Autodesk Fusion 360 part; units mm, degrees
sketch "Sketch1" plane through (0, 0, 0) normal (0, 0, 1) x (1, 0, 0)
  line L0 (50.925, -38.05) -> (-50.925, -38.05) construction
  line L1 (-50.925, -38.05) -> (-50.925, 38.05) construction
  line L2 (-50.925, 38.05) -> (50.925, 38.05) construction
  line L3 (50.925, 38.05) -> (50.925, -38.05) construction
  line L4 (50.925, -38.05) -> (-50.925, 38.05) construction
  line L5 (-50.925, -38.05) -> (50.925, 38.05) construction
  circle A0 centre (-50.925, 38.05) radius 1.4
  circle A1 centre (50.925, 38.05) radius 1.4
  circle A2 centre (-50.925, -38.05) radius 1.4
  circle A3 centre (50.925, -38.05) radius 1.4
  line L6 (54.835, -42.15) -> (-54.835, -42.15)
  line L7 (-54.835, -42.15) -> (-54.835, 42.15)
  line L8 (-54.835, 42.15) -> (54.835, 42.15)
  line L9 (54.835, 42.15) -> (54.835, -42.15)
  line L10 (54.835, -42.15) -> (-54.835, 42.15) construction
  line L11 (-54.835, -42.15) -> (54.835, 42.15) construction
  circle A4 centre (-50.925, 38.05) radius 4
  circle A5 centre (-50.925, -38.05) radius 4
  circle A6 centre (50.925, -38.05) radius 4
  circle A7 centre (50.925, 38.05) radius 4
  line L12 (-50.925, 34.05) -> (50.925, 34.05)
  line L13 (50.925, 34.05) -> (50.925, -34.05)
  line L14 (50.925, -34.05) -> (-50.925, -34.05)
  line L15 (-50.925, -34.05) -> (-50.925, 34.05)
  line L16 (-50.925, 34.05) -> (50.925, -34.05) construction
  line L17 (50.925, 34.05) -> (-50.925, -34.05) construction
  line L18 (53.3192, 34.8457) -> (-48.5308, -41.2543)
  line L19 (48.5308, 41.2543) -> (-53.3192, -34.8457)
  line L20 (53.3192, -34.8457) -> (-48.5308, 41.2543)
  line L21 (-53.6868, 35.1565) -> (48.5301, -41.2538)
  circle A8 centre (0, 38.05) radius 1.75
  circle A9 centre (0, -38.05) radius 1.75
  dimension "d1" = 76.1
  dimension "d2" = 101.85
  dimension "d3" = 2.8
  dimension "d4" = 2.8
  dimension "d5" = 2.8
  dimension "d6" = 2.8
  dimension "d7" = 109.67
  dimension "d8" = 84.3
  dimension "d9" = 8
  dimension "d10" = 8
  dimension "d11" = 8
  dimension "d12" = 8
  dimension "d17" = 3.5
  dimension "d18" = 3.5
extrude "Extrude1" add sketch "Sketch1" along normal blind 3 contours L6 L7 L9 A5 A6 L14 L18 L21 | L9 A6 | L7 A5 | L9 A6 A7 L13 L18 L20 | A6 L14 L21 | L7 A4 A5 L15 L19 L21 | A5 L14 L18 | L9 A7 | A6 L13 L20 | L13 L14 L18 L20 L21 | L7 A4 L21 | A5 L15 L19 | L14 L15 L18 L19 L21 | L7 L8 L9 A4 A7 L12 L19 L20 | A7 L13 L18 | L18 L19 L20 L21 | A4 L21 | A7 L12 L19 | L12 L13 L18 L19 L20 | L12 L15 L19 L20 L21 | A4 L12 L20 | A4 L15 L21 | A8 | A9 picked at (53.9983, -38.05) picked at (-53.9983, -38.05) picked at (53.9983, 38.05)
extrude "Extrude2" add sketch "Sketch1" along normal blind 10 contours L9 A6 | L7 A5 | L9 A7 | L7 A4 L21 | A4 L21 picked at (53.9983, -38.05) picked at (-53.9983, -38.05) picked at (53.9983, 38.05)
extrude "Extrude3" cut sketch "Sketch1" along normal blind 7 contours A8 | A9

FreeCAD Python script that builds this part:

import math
import FreeCAD as App
import Part
import Sketcher
from FreeCAD import Vector
Q = App.Units.Quantity


def add_polygon(sketch, points):
    """Adds a closed chain of lines whose ends are joined by coincident constraints."""
    first, n = sketch.GeometryCount, len(points)
    for a, b in zip(points, points[1:] + points[:1]):
        sketch.addGeometry(Part.LineSegment(App.Vector(*a, 0), App.Vector(*b, 0)), False)
    for i in range(n):
        sketch.addConstraint(Sketcher.Constraint("Coincident", first + i, 2, first + (i + 1) % n, 1))

doc = App.newDocument("Part")
body = doc.addObject("PartDesign::Body", "Body")

# Sketch on XY plane
sketch1 = doc.addObject("Sketcher::SketchObject", "Sketch")
body.addObject(sketch1)
sketch1.AttachmentSupport = (doc.XY_Plane, [""])
sketch1.MapMode = "FlatFace"
add_polygon(sketch1, [(-54.835, -42.15), (54.835, -42.15), (54.835, 42.15), (-54.835, 42.15)])  # lines 0-3
add_polygon(sketch1, [(38.893309, -34.05), (-38.888777, -34.05), (0.011471, -4.984621)])  # lines 4-6
sketch1.addGeometry(Part.Circle(Vector(-50.925, -38.05, 0), Vector(0, 0, 1), 1.4), False)  # 7
sketch1.addGeometry(Part.Circle(Vector(50.925, -38.05, 0), Vector(0, 0, 1), 1.4), False)  # 8
add_polygon(sketch1, [(-50.925, -33.056808), (-50.925, 33.091969), (-6.669689, 0.009752)])  # lines 9-11
add_polygon(sketch1, [(50.925, -33.056808), (6.682741, 0), (50.925, 33.056808)])  # lines 12-14
sketch1.addGeometry(Part.Circle(Vector(-50.925, 38.05, 0), Vector(0, 0, 1), 1.4), False)  # 15
sketch1.addGeometry(Part.Circle(Vector(50.925, 38.05, 0), Vector(0, 0, 1), 1.4), False)  # 16
add_polygon(sketch1, [(-38.888777, 34.05), (38.888777, 34.05), (0, 4.993192)])  # lines 17-19
sketch1.addConstraint([
    Sketcher.Constraint("Horizontal", 0),
    Sketcher.Constraint("Vertical", 1),
    Sketcher.Constraint("Horizontal", 2),
    Sketcher.Constraint("Vertical", 3),
    Sketcher.Constraint("Horizontal", 4),
    Sketcher.Constraint("Vertical", 9),
    Sketcher.Constraint("Vertical", 14),
    Sketcher.Constraint("Horizontal", 17),
    Sketcher.Constraint("PointOnObject", 12, 2, -1),
    Sketcher.Constraint("PointOnObject", 18, 2, -2),
    Sketcher.Constraint("Diameter", 7, Q("2.8 mm")),
    Sketcher.Constraint("Diameter", 8, Q("2.8 mm")),
    Sketcher.Constraint("Diameter", 15, Q("2.8 mm")),
    Sketcher.Constraint("Diameter", 16, Q("2.8 mm")),
    Sketcher.Constraint("DistanceY", 1, 1, 1, 2, Q("84.3 mm")),
    Sketcher.Constraint("DistanceX", 0, 1, 0, 2, Q("109.67 mm")),
    Sketcher.Constraint("DistanceY", 7, 3, 15, 3, Q("76.1 mm")),
    Sketcher.Constraint("DistanceY", 8, 3, 15, 3, Q("76.1 mm")),
    Sketcher.Constraint("DistanceY", 8, 3, 16, 3, Q("76.1 mm")),
    Sketcher.Constraint("DistanceX", 7, 3, 8, 3, Q("101.85 mm")),
    Sketcher.Constraint("DistanceX", 15, 3, 8, 3, Q("101.85 mm")),
    Sketcher.Constraint("DistanceX", 15, 3, 16, 3, Q("101.85 mm")),
    Sketcher.Constraint("DistanceY", 7, 3, 4, 2, Q("4 mm")),
    Sketcher.Constraint("DistanceY", 17, 2, 16, 3, Q("4 mm")),
    Sketcher.Constraint("DistanceY", 0, 2, 8, 3, Q("4.1 mm")),
    Sketcher.Constraint("DistanceX", 4, 2, 4, 1, Q("77.782 mm")),
    Sketcher.Constraint("DistanceY", 7, 3, -1, 1, Q("38.05 mm")),
    Sketcher.Constraint("DistanceX", 8, 3, 0, 2, Q("3.91 mm")),
    Sketcher.Constraint("DistanceX", 2, 2, 9, 2, Q("3.91 mm")),
    Sketcher.Constraint("DistanceX", 13, 2, 1, 2, Q("3.91 mm")),
    Sketcher.Constraint("Distance", 12, Q("55.228 mm")),
    Sketcher.Constraint("Distance", 13, Q("55.228 mm")),
    Sketcher.Constraint("DistanceX", 17, 1, 17, 2, Q("77.7776 mm")),
    Sketcher.Constraint("DistanceY", 9, 1, 9, 2, Q("66.1488 mm")),
    Sketcher.Constraint("DistanceY", 14, 2, 14, 1, Q("66.1136 mm")),
    Sketcher.Constraint("DistanceX", 7, 3, -1, 1, Q("50.925 mm")),
    Sketcher.Constraint("DistanceY", -1, 1, 9, 2, Q("33.092 mm")),
    Sketcher.Constraint("DistanceX", 4, 2, 10, 2, Q("32.219 mm")),
    Sketcher.Constraint("DistanceY", 10, 2, 13, 2, Q("33.047 mm")),
    Sketcher.Constraint("DistanceX", 12, 2, 17, 2, Q("32.206 mm")),
    Sketcher.Constraint("DistanceX", 19, 2, 10, 2, Q("32.219 mm")),
    Sketcher.Constraint("Distance", 5, Q("48.5595 mm")),
    Sketcher.Constraint("Distance", 6, Q("48.5448 mm")),
    Sketcher.Constraint("Distance", 18, Q("48.5452 mm")),
])
pad1 = doc.addObject("PartDesign::Pad", "Pad")
body.addObject(pad1)
pad1.Profile = sketch1
pad1.Length = 3

# Sketch on XY plane
sketch2 = doc.addObject("Sketcher::SketchObject", "Sketch001")
body.addObject(sketch2)
sketch2.AttachmentSupport = (doc.XY_Plane, [""])
sketch2.MapMode = "FlatFace"
sketch2.addGeometry([
    Part.ArcOfCircle(Part.Circle(Vector(50.9, -38, 0), Vector(0, 0, 1), 4), math.radians(12), math.radians(348)),  # 0
    Part.LineSegment(Vector(54.8, -38.9, 0), Vector(54.8, -37.2, 0)),  # 1
    Part.Circle(Vector(50.9, -38, 0), Vector(0, 0, 1), 1.4),  # 2
    Part.LineSegment(Vector(-54.8, -37.2, 0), Vector(-54.8, -38.9, 0)),  # 3
    Part.ArcOfCircle(Part.Circle(Vector(-50.9, -38, 0), Vector(0, 0, 1), 4), math.radians(-168), math.radians(168)),  # 4
    Part.Circle(Vector(-50.9, -38, 0), Vector(0, 0, 1), 1.4),  # 5
    Part.ArcOfCircle(Part.Circle(Vector(50.9, 38, 0), Vector(0, 0, 1), 4), math.radians(12), math.radians(348)),  # 6
    Part.LineSegment(Vector(54.8, 37.2, 0), Vector(54.8, 38.9, 0)),  # 7
    Part.Circle(Vector(50.9, 38, 0), Vector(0, 0, 1), 1.4),  # 8
    Part.LineSegment(Vector(-54.8, 38.9, 0), Vector(-54.8, 37.2, 0)),  # 9
    Part.ArcOfCircle(Part.Circle(Vector(-50.9, 38, 0), Vector(0, 0, 1), 4), math.radians(-168), math.radians(168)),  # 10
    Part.Circle(Vector(-50.9, 38, 0), Vector(0, 0, 1), 1.4),  # 11
], False)
sketch2.addConstraint([
    Sketcher.Constraint("Coincident", 0, 1, 1, 2),
    Sketcher.Constraint("Coincident", 1, 1, 0, 2),
    Sketcher.Constraint("Coincident", 3, 1, 4, 2),
    Sketcher.Constraint("Coincident", 4, 1, 3, 2),
    Sketcher.Constraint("Coincident", 6, 1, 7, 2),
    Sketcher.Constraint("Coincident", 7, 1, 6, 2),
    Sketcher.Constraint("Coincident", 9, 1, 10, 2),
    Sketcher.Constraint("Coincident", 10, 1, 9, 2),
    Sketcher.Constraint("Vertical", 1),
    Sketcher.Constraint("Vertical", 3),
    Sketcher.Constraint("Vertical", 7),
    Sketcher.Constraint("Vertical", 9),
    Sketcher.Constraint("Coincident", 2, 3, 0, 3),
    Sketcher.Constraint("Coincident", 5, 3, 4, 3),
    Sketcher.Constraint("Coincident", 8, 3, 6, 3),
    Sketcher.Constraint("Coincident", 11, 3, 10, 3),
    Sketcher.Constraint("Equal", 0, 4),
    Sketcher.Constraint("Equal", 2, 5),
    Sketcher.Constraint("Equal", 4, 6),
    Sketcher.Constraint("Equal", 5, 8),
    Sketcher.Constraint("Equal", 6, 10),
    Sketcher.Constraint("Equal", 8, 11),
    Sketcher.Constraint("Symmetric", 4, 3, 6, 3, -1, 1),
    Sketcher.Constraint("Symmetric", 0, 3, 10, 3, -1, 1),
    Sketcher.Constraint("Symmetric", 0, 3, 4, 3, -2),
    Sketcher.Constraint("Horizontal", 0, 1, 3, 1),
    Sketcher.Constraint("Horizontal", 6, 1, 9, 1),
    Sketcher.Constraint("Vertical", 1, 1, 6, 1),
    Sketcher.Constraint("Radius", 0, Q("4 mm")),
    Sketcher.Constraint("Diameter", 2, Q("2.8 mm")),
    Sketcher.Constraint("DistanceY", 0, 3, 6, 3, Q("76.1 mm")),
    Sketcher.Constraint("DistanceX", 4, 3, 0, 3, Q("101.85 mm")),
    Sketcher.Constraint("DistanceX", 0, 3, 0, 1, Q("3.91 mm")),
])
pad2 = doc.addObject("PartDesign::Pad", "Pad001")
body.addObject(pad2)
pad2.Profile = sketch2
pad2.Length = 10

# Sketch on XY plane
sketch3 = doc.addObject("Sketcher::SketchObject", "Sketch002")
body.addObject(sketch3)
sketch3.AttachmentSupport = (doc.XY_Plane, [""])
sketch3.MapMode = "FlatFace"
sketch3.addGeometry([
    Part.Circle(Vector(0, 38, 0), Vector(0, 0, 1), 1.8),
    Part.Circle(Vector(0, -38, 0), Vector(0, 0, 1), 1.8),
], False)
sketch3.addConstraint([
    Sketcher.Constraint("Equal", 0, 1),
    Sketcher.Constraint("Symmetric", 0, 3, 1, 3, -1, 1),
    Sketcher.Constraint("PointOnObject", 0, 3, -2),
    Sketcher.Constraint("Diameter", 0, Q("3.5 mm")),
    Sketcher.Constraint("DistanceY", 1, 3, 0, 3, Q("76.1 mm")),
])
pocket1 = doc.addObject("PartDesign::Pocket", "Pocket")
body.addObject(pocket1)
pocket1.Profile = sketch3
pocket1.Length = 7
pocket1.Reversed = True

doc.recompute()
